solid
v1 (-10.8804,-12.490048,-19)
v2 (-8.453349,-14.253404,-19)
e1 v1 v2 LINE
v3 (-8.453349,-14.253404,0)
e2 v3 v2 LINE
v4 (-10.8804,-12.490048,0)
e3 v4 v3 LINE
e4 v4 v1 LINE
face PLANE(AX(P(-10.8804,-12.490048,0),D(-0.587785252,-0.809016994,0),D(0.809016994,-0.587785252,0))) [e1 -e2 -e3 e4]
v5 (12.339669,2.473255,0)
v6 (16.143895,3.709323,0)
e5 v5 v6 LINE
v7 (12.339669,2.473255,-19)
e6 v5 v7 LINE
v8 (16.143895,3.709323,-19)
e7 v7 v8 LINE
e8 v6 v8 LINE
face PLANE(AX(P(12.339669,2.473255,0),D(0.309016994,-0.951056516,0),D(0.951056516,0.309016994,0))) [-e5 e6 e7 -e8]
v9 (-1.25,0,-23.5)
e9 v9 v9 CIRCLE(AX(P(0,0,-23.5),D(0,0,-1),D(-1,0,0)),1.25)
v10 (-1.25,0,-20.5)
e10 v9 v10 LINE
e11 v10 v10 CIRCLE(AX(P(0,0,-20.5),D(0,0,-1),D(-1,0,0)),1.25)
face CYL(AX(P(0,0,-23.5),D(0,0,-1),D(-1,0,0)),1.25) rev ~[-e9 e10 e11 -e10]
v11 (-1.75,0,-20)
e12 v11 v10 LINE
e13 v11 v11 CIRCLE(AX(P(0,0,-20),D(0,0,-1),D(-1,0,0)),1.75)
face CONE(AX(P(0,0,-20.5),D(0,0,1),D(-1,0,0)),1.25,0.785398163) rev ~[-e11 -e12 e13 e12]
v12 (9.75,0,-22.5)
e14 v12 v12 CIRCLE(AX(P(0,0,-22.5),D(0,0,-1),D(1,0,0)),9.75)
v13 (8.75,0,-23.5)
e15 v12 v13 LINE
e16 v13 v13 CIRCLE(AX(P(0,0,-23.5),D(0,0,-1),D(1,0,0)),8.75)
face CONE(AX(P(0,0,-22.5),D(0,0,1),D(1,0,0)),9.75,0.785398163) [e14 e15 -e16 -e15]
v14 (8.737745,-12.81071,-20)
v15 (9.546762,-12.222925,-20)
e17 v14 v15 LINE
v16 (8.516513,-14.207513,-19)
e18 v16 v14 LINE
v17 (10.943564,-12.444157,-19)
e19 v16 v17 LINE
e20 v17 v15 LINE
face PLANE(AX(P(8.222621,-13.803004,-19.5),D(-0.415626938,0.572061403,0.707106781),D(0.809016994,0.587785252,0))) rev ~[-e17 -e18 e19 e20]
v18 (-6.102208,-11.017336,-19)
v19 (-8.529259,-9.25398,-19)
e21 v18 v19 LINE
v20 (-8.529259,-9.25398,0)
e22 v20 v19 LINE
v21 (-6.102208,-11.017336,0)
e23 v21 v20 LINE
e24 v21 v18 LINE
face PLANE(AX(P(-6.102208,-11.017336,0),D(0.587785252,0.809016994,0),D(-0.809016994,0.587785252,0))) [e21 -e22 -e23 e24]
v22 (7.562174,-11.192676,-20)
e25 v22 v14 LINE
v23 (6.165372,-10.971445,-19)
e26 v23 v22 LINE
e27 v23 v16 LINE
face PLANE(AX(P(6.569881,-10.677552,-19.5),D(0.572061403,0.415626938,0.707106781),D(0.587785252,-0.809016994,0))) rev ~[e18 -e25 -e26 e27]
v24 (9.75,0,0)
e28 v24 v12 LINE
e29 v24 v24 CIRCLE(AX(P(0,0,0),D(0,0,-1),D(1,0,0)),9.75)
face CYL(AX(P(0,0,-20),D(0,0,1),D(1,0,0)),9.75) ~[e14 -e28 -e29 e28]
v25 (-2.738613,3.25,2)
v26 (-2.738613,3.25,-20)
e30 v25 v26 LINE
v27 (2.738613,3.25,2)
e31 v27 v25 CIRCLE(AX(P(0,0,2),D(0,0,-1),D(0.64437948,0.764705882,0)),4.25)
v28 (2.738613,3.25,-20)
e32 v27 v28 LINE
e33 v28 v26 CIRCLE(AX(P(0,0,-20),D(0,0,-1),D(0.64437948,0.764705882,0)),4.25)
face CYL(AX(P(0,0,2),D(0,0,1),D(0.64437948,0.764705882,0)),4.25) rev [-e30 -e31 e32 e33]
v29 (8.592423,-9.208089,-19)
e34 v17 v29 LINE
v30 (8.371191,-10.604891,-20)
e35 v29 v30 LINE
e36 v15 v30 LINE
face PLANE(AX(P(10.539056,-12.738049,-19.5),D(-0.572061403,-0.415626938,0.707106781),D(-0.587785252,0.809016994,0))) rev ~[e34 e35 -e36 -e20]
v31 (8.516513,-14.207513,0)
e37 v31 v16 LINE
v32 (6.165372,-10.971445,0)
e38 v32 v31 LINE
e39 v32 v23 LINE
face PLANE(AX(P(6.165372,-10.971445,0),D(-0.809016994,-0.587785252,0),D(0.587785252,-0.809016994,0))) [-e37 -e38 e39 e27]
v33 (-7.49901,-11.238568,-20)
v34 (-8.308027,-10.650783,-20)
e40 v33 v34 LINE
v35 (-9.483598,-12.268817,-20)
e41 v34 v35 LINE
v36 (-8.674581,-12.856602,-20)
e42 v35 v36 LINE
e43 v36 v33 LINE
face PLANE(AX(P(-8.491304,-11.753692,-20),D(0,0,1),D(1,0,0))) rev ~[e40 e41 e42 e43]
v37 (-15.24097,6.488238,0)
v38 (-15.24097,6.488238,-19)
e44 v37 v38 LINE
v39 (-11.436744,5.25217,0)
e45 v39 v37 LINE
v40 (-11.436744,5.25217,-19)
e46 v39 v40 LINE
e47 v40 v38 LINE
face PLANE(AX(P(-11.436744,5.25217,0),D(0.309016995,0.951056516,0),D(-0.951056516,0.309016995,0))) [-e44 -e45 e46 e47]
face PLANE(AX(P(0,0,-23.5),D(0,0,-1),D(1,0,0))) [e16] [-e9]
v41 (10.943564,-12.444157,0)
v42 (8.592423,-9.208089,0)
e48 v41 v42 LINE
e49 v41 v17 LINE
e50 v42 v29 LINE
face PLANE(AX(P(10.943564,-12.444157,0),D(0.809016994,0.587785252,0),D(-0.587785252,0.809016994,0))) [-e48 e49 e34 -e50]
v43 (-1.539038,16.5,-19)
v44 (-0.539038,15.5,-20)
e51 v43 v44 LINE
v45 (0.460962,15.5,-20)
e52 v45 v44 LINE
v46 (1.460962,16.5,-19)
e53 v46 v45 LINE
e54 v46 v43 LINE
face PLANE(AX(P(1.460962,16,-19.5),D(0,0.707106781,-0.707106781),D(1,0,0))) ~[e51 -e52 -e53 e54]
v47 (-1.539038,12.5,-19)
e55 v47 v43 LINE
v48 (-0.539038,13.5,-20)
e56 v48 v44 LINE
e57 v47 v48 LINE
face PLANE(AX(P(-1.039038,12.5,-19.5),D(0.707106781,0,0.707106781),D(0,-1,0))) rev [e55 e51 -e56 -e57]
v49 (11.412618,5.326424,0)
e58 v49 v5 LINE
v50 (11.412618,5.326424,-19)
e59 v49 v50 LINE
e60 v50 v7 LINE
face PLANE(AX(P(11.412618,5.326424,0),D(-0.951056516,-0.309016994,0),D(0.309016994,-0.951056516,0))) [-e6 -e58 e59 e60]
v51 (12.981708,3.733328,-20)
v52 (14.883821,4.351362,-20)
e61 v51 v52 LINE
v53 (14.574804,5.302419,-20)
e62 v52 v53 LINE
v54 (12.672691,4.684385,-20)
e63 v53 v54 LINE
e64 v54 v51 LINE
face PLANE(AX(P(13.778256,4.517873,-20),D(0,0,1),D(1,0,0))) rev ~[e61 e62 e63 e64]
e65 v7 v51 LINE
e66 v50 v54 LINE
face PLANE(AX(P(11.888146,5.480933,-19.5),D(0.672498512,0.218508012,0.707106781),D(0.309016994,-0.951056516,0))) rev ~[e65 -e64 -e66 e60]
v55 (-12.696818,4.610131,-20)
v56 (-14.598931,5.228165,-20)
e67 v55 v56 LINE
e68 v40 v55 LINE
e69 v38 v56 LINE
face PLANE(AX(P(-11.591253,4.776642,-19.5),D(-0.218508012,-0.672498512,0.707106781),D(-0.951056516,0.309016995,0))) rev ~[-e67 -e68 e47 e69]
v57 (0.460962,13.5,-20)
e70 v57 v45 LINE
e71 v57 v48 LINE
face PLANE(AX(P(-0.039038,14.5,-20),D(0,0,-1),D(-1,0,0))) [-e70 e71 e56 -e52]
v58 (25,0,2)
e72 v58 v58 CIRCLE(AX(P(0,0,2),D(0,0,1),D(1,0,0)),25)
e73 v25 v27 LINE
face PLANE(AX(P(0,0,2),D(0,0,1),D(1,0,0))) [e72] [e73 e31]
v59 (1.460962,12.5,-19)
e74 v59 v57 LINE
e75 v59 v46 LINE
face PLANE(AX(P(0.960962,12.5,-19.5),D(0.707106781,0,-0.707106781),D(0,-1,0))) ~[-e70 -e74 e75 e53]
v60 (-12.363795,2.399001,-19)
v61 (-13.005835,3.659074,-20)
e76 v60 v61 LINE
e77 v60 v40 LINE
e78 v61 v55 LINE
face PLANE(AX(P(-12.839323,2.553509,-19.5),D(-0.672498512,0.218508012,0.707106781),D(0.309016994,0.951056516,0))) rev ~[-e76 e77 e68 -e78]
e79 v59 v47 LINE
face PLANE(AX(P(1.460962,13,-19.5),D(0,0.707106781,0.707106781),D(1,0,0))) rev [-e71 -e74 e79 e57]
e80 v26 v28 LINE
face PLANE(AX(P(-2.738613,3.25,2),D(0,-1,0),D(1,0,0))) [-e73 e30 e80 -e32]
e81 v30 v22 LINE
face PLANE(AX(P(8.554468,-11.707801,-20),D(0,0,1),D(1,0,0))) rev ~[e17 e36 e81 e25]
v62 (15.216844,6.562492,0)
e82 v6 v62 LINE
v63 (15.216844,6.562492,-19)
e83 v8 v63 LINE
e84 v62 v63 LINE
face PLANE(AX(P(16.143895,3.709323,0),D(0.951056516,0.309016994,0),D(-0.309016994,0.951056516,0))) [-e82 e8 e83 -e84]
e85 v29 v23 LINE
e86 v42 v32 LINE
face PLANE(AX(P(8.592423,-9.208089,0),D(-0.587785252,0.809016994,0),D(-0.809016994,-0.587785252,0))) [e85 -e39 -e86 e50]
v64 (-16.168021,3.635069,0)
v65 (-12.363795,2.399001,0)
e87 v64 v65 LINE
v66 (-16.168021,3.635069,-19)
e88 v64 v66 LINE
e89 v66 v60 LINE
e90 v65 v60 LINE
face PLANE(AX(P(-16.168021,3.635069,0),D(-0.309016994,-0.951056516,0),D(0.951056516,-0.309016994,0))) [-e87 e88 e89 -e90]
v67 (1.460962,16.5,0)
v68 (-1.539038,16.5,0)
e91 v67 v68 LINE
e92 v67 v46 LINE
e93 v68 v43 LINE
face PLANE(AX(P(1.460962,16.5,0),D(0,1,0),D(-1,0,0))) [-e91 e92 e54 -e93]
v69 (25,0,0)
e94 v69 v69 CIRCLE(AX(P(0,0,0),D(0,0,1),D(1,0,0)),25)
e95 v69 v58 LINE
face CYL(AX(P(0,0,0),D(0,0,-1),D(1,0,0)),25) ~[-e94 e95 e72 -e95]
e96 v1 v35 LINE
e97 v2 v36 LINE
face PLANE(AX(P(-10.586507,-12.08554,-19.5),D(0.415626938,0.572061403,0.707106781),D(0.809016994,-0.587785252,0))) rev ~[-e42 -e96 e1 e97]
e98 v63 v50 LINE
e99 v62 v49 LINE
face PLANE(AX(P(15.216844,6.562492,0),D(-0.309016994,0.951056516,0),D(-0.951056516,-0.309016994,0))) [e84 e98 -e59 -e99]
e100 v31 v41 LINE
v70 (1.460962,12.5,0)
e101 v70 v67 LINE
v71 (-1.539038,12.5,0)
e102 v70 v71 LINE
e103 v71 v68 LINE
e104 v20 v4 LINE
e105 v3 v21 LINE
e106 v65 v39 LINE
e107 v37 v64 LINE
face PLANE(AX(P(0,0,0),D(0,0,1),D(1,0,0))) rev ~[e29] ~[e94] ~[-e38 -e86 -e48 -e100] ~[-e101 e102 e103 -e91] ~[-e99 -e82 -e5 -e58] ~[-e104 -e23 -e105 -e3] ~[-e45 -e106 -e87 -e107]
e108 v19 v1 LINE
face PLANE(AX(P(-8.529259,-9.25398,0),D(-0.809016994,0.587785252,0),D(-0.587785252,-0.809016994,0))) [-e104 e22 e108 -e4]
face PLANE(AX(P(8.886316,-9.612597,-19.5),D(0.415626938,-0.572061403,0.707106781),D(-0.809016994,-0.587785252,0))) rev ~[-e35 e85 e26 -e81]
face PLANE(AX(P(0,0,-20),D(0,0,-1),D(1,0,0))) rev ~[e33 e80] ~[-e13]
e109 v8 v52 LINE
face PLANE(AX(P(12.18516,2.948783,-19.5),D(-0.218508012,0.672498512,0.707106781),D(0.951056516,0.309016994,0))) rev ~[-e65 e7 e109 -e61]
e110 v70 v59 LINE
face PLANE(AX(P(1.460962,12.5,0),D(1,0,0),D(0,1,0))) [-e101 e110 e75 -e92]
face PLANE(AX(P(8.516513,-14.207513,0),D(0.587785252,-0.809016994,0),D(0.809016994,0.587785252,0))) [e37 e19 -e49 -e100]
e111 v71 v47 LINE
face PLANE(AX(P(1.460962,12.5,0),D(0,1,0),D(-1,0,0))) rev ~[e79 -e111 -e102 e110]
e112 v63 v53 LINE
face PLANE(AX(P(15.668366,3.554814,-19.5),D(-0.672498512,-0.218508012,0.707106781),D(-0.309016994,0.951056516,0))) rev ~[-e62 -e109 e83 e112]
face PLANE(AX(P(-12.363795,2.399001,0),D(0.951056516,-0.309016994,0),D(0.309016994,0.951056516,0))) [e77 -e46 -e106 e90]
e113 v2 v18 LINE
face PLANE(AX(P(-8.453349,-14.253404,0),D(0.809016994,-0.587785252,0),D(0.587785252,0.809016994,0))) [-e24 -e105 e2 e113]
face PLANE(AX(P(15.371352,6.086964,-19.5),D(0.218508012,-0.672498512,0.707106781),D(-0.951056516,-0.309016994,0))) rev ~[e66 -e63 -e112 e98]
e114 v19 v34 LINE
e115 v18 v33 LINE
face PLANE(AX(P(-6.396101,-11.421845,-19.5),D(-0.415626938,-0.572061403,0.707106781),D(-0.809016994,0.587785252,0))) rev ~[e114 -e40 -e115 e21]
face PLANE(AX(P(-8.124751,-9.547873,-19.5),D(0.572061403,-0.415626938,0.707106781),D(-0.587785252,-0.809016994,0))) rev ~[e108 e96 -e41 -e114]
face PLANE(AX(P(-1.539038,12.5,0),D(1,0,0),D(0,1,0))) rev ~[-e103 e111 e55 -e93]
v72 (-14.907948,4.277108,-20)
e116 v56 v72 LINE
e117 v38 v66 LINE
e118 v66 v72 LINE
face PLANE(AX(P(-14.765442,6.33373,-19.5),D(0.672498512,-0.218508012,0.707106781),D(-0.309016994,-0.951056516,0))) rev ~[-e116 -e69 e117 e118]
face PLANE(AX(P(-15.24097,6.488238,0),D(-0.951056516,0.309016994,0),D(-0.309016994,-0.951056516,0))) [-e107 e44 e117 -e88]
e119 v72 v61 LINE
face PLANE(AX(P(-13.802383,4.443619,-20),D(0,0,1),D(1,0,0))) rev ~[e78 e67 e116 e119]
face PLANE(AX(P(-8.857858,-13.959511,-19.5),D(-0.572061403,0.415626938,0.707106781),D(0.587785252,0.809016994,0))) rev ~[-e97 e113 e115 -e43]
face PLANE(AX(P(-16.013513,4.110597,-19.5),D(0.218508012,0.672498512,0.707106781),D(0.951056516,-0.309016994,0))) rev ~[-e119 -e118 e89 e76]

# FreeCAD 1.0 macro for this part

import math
import FreeCAD as App
import Part
import Sketcher

V = App.Vector
Q = App.Units.Quantity


def edges_at(feature, points):
    """Names of the edges that pass closest to the given points."""
    edges = feature.Shape.Edges
    near = lambda p: min(range(len(edges)), key=lambda i: edges[i].distToShape(Part.Vertex(*p))[0])
    return sorted({f"Edge{near(p) + 1}" for p in points})

doc = App.newDocument("Part")
body = doc.addObject("PartDesign::Body", "Body")

# Sketch on XY plane
sketch1 = body.newObject("Sketcher::SketchObject", "Sketch")
sketch1.AttachmentSupport = (doc.getObject("XY_Plane"), [""])
sketch1.MapMode = "FlatFace"
sketch1.addGeometry(Part.Circle(V(0, 0, 0), V(0, 0, 1), 25), False)
sketch1.addConstraint([
    Sketcher.Constraint("Coincident", 0, 3, -1, 1),
    Sketcher.Constraint("Diameter", 0, 50.0),
])
pad1 = body.newObject("PartDesign::Pad", "Pad")
pad1.Profile = sketch1
pad1.Length = 2

# Sketch on XY plane
sketch2 = body.newObject("Sketcher::SketchObject", "Sketch001")
sketch2.AttachmentSupport = (doc.getObject("XY_Plane"), [""])
sketch2.MapMode = "FlatFace"
sketch2.addGeometry([
    Part.Circle(V(0, 0, 0), V(0, 0, 1), 9.8),  # 0
    Part.LineSegment(V(11.4, 5.3, 0), V(15.2, 6.6, 0)),  # 1
    Part.LineSegment(V(15.2, 6.6, 0), V(16.1, 3.7, 0)),  # 2
    Part.LineSegment(V(16.1, 3.7, 0), V(12.3, 2.5, 0)),  # 3
    Part.LineSegment(V(12.3, 2.5, 0), V(11.4, 5.3, 0)),  # 4
    Part.LineSegment(V(1.5, 16.5, 0), V(1.5, 12.5, 0)),  # 5
    Part.LineSegment(V(1.5, 12.5, 0), V(-1.5, 12.5, 0)),  # 6
    Part.LineSegment(V(-1.5, 12.5, 0), V(-1.5, 16.5, 0)),  # 7
    Part.LineSegment(V(-1.5, 16.5, 0), V(1.5, 16.5, 0)),  # 8
    Part.LineSegment(V(-16.2, 3.6, 0), V(-15.2, 6.5, 0)),  # 9
    Part.LineSegment(V(-15.2, 6.5, 0), V(-11.4, 5.3, 0)),  # 10
    Part.LineSegment(V(-11.4, 5.3, 0), V(-12.4, 2.4, 0)),  # 11
    Part.LineSegment(V(-12.4, 2.4, 0), V(-16.2, 3.6, 0)),  # 12
    Part.LineSegment(V(-8.5, -14.3, 0), V(-10.9, -12.5, 0)),  # 13
    Part.LineSegment(V(-10.9, -12.5, 0), V(-8.5, -9.3, 0)),  # 14
    Part.LineSegment(V(-8.5, -9.3, 0), V(-6.1, -11, 0)),  # 15
    Part.LineSegment(V(-6.1, -11, 0), V(-8.5, -14.3, 0)),  # 16
    Part.LineSegment(V(10.9, -12.4, 0), V(8.5, -14.2, 0)),  # 17
    Part.LineSegment(V(8.5, -14.2, 0), V(6.2, -11, 0)),  # 18
    Part.LineSegment(V(6.2, -11, 0), V(8.6, -9.2, 0)),  # 19
    Part.LineSegment(V(8.6, -9.2, 0), V(10.9, -12.4, 0)),  # 20
], False)
sketch2.addConstraint([
    Sketcher.Constraint("Coincident", 1, 2, 2, 1),
    Sketcher.Constraint("Coincident", 2, 2, 3, 1),
    Sketcher.Constraint("Coincident", 3, 2, 4, 1),
    Sketcher.Constraint("Coincident", 4, 2, 1, 1),
    Sketcher.Constraint("Coincident", 5, 2, 6, 1),
    Sketcher.Constraint("Coincident", 6, 2, 7, 1),
    Sketcher.Constraint("Coincident", 7, 2, 8, 1),
    Sketcher.Constraint("Coincident", 8, 2, 5, 1),
    Sketcher.Constraint("Coincident", 9, 2, 10, 1),
    Sketcher.Constraint("Coincident", 10, 2, 11, 1),
    Sketcher.Constraint("Coincident", 11, 2, 12, 1),
    Sketcher.Constraint("Coincident", 12, 2, 9, 1),
    Sketcher.Constraint("Coincident", 13, 2, 14, 1),
    Sketcher.Constraint("Coincident", 14, 2, 15, 1),
    Sketcher.Constraint("Coincident", 15, 2, 16, 1),
    Sketcher.Constraint("Coincident", 16, 2, 13, 1),
    Sketcher.Constraint("Coincident", 17, 2, 18, 1),
    Sketcher.Constraint("Coincident", 18, 2, 19, 1),
    Sketcher.Constraint("Coincident", 19, 2, 20, 1),
    Sketcher.Constraint("Coincident", 20, 2, 17, 1),
    Sketcher.Constraint("Vertical", 5),
    Sketcher.Constraint("Horizontal", 6),
    Sketcher.Constraint("Vertical", 7),
    Sketcher.Constraint("Horizontal", 8),
    Sketcher.Constraint("Coincident", 0, 3, -1, 1),
    Sketcher.Constraint("Perpendicular", 1, 2),
    Sketcher.Constraint("Perpendicular", 2, 3),
    Sketcher.Constraint("Perpendicular", 3, 4),
    Sketcher.Constraint("Perpendicular", 9, 10),
    Sketcher.Constraint("Perpendicular", 10, 11),
    Sketcher.Constraint("Perpendicular", 11, 12),
    Sketcher.Constraint("Perpendicular", 13, 14),
    Sketcher.Constraint("Perpendicular", 14, 15),
    Sketcher.Constraint("Perpendicular", 15, 16),
    Sketcher.Constraint("Perpendicular", 17, 18),
    Sketcher.Constraint("Perpendicular", 18, 19),
    Sketcher.Constraint("Perpendicular", 19, 20),
    Sketcher.Constraint("Equal", 4, 9),
    Sketcher.Constraint("Equal", 3, 10),
    Sketcher.Constraint("Equal", 11, 13),
    Sketcher.Constraint("Equal", 12, 14),
    Sketcher.Constraint("Equal", 15, 17),
    Sketcher.Constraint("Equal", 16, 18),
    Sketcher.Constraint("Diameter", 0, 19.5),
    Sketcher.Constraint("DistanceX", 6, 2, 6, 1, 3.0),
    Sketcher.Constraint("DistanceY", 5, 2, 5, 1, 4.0),
    Sketcher.Constraint("Angle", 1, Q("18 deg")),
    Sketcher.Constraint("Angle", 9, Q("72 deg")),
    Sketcher.Constraint("Angle", 13, Q("144 deg")),
    Sketcher.Constraint("Angle", 17, Q("-144 deg")),
    Sketcher.Constraint("Distance", 1, 4.0),
    Sketcher.Constraint("Distance", 2, 3.0),
    Sketcher.Constraint("DistanceY", -1, 1, 5, 2, 12.5),
    Sketcher.Constraint("DistanceY", -1, 1, 11, 2, 2.399001),
    Sketcher.Constraint("DistanceX", 13, 2, -1, 1, 10.8804),
    Sketcher.Constraint("DistanceY", 18, 2, 3, 2, 13.444699),
    Sketcher.Constraint("DistanceX", -1, 1, 3, 2, 12.339669),
    Sketcher.Constraint("DistanceX", 9, 2, -1, 1, 15.24097),
    Sketcher.Constraint("DistanceY", 13, 2, -1, 1, 12.490048),
    Sketcher.Constraint("DistanceY", 19, 2, -1, 1, 9.208089),
    Sketcher.Constraint("DistanceX", 5, 2, 1, 2, 13.755881),
    Sketcher.Constraint("DistanceX", 15, 2, 17, 2, 14.618721),
])
pad2 = body.newObject("PartDesign::Pad", "Pad001")
pad2.Profile = sketch2
pad2.Length = 20
pad2.Reversed = True

# Sketch on XY plane
sketch3 = body.newObject("Sketcher::SketchObject", "Sketch002")
sketch3.AttachmentSupport = (doc.getObject("XY_Plane"), [""])
sketch3.MapMode = "FlatFace"
sketch3.AttachmentOffset = App.Placement(V(0, 0, 2), App.Rotation())
sketch3.addGeometry([
    Part.LineSegment(V(2.7, 3.2, 0), V(-2.7, 3.2, 0)),
    Part.ArcOfCircle(Part.Circle(V(0, 0, 0), V(0, 0, 1), 4.2), math.radians(130), math.radians(410)),
], False)
sketch3.addConstraint([
    Sketcher.Constraint("Coincident", 0, 1, 1, 2),
    Sketcher.Constraint("Coincident", 1, 1, 0, 2),
    Sketcher.Constraint("Horizontal", 0),
    Sketcher.Constraint("Coincident", 1, 3, -1, 1),
    Sketcher.Constraint("Radius", 1, 4.25),
    Sketcher.Constraint("DistanceY", -1, 1, 0, 1, 3.25),
])
pocket1 = body.newObject("PartDesign::Pocket", "Pocket")
pocket1.Profile = sketch3
pocket1.Length = 22

# Sketch on XY plane
sketch4 = body.newObject("Sketcher::SketchObject", "Sketch003")
sketch4.AttachmentSupport = (doc.getObject("XY_Plane"), [""])
sketch4.MapMode = "FlatFace"
sketch4.AttachmentOffset = App.Placement(V(0, 0, -20), App.Rotation())
sketch4.addGeometry(Part.Circle(V(0, 0, 0), V(0, 0, 1), 10), False)
sketch4.addConstraint([
    Sketcher.Constraint("Coincident", 0, 3, -1, 1),
    Sketcher.Constraint("Diameter", 0, 19.5),
])
pad3 = body.newObject("PartDesign::Pad", "Pad002")
pad3.Profile = sketch4
pad3.Length = 3.5
pad3.Reversed = True

# Sketch on XY plane
sketch5 = body.newObject("Sketcher::SketchObject", "Sketch004")
sketch5.AttachmentSupport = (doc.getObject("XY_Plane"), [""])
sketch5.MapMode = "FlatFace"
sketch5.AttachmentOffset = App.Placement(V(0, 0, -23.5), App.Rotation())
sketch5.addGeometry(Part.Circle(V(0, 0, 0), V(0, 0, 1), 1.2), False)
sketch5.addConstraint([
    Sketcher.Constraint("Coincident", 0, 3, -1, 1),
    Sketcher.Constraint("Diameter", 0, 2.5),
])
pocket2 = body.newObject("PartDesign::Pocket", "Pocket001")
pocket2.Profile = sketch5
pocket2.Type = "ThroughAll"
pocket2.Reversed = True
doc.recompute()

chamfer = body.newObject("PartDesign::Chamfer", "Chamfer")
chamfer.Base = (pocket2, edges_at(pocket2, [
    (14.242, 3.091, -20),
    (11.876, 3.9, -20),
    (13.315, 5.944, -20),
    (15.68, 5.136, -20),
]))
chamfer.Size = 1
doc.recompute()

chamfer2 = body.newObject("PartDesign::Chamfer", "Chamfer001")
chamfer2.Base = (chamfer, edges_at(chamfer, [
    (-1.539, 14.5, -20),
    (-0.039, 16.5, -20),
    (1.461, 14.5, -20),
    (-0.039, 12.5, -20),
    (-14.266, 3.017, -20),
    (-15.704, 5.062, -20),
    (-13.339, 5.87, -20),
    (-11.9, 3.826, -20),
    (-7.278, -12.635, -20),
    (-9.667, -13.372, -20),
    (-9.705, -10.872, -20),
    (-7.316, -10.136, -20),
    (9.768, -10.826, -20),
    (9.73, -13.326, -20),
    (7.341, -12.589, -20),
    (7.379, -10.09, -20),
    (-9.75, 0, -23.5),
]))
chamfer2.Size = 1
doc.recompute()

chamfer3 = body.newObject("PartDesign::Chamfer", "Chamfer002")
chamfer3.Base = (chamfer2, edges_at(chamfer2, [(1.25, 0, -20)]))
chamfer3.Size = 0.5

doc.recompute()
